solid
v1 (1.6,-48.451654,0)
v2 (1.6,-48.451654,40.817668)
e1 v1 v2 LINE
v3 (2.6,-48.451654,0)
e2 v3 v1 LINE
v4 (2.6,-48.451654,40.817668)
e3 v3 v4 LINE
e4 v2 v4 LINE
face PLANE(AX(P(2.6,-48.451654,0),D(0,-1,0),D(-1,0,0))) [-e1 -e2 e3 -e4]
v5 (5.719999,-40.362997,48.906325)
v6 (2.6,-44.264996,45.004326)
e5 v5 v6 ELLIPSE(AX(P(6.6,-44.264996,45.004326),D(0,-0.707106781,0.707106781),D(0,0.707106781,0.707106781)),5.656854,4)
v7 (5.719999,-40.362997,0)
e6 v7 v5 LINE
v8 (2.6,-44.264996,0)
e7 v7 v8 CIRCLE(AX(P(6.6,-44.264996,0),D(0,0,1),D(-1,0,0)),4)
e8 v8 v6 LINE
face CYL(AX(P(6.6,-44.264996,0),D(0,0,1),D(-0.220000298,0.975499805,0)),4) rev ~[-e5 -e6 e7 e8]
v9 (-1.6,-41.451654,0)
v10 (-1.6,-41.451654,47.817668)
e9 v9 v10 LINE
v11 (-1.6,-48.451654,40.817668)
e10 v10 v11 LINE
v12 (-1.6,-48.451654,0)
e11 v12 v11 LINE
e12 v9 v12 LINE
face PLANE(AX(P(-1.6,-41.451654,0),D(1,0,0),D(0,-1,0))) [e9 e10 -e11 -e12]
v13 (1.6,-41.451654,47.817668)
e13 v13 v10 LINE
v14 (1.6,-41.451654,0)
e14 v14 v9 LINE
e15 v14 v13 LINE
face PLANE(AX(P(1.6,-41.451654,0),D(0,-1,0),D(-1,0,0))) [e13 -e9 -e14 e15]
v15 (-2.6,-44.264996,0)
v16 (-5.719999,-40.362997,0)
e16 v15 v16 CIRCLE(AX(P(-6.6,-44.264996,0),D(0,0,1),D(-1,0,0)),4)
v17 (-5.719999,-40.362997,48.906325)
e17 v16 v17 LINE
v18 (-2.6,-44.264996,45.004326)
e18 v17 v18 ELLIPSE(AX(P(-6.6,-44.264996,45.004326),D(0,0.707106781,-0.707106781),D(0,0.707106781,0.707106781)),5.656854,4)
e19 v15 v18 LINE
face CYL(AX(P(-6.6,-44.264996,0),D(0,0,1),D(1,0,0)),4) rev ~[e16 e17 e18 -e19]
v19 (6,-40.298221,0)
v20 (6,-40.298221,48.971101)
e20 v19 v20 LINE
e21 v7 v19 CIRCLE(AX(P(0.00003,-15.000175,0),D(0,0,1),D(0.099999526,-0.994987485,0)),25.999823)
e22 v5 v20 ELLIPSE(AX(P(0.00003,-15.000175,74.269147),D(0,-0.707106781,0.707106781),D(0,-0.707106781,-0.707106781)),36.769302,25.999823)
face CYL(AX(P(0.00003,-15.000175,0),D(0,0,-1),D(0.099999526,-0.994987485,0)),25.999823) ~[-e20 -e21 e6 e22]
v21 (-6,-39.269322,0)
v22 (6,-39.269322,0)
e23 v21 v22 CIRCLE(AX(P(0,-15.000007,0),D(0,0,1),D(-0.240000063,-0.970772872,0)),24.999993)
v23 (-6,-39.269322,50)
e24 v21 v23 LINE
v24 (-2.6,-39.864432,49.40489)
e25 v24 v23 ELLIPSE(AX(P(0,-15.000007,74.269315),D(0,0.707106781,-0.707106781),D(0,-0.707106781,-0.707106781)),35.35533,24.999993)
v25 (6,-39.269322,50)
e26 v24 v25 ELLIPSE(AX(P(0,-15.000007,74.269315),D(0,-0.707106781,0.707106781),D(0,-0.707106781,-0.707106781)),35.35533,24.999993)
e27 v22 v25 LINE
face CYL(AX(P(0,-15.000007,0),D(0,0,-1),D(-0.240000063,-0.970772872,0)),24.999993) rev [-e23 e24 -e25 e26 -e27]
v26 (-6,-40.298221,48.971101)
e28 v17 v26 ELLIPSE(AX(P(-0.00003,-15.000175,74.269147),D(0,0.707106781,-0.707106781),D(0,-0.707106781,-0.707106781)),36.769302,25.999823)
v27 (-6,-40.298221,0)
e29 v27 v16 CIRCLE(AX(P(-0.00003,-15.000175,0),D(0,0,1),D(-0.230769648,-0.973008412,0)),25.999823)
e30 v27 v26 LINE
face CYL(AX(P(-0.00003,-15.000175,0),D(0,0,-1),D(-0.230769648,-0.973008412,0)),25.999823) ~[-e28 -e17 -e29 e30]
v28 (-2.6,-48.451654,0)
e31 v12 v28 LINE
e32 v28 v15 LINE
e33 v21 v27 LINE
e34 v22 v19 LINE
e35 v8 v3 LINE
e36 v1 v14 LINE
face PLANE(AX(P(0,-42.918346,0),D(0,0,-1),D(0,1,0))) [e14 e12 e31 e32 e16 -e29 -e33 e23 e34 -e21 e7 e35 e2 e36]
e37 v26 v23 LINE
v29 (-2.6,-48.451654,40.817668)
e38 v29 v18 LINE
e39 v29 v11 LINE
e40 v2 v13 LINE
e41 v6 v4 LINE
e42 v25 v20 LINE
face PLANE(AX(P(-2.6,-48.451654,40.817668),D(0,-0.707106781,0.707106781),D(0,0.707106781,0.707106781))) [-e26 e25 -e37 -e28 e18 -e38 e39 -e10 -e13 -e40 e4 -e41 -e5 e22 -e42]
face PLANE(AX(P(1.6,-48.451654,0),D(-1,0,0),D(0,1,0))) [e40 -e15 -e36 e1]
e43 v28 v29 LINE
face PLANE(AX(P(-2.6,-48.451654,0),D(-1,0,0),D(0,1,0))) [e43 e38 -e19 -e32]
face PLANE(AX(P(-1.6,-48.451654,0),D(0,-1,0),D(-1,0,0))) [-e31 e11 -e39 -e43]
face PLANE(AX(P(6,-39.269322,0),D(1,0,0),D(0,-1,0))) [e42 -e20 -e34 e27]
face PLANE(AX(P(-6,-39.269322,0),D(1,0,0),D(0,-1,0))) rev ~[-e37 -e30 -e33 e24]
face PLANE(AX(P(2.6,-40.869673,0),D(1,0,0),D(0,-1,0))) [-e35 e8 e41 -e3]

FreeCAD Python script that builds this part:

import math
import FreeCAD as App
import Part
import Sketcher

V = App.Vector
Q = App.Units.Quantity


def edges_at(feature, points):
    """Names of the edges that pass closest to the given points."""
    edges = feature.Shape.Edges
    near = lambda p: min(range(len(edges)), key=lambda i: edges[i].distToShape(Part.Vertex(*p))[0])
    return sorted({f"Edge{near(p) + 1}" for p in points})


def add_polygon(sketch, points):
    """Adds a closed chain of lines whose ends are joined by coincident constraints."""
    first, n = sketch.GeometryCount, len(points)
    for a, b in zip(points, points[1:] + points[:1]):
        sketch.addGeometry(Part.LineSegment(App.Vector(*a, 0), App.Vector(*b, 0)), False)
    for i in range(n):
        sketch.addConstraint(Sketcher.Constraint("Coincident", first + i, 2, first + (i + 1) % n, 1))

doc = App.newDocument("Part")
body = doc.addObject("PartDesign::Body", "Body")

sketch1 = body.newObject("Sketcher::SketchObject", "Sketch")
sketch1.AttachmentSupport = (doc.getObject("XY_Plane"), [""])
sketch1.MapMode = "FlatFace"
sketch1.addGeometry(Part.ArcOfCircle(Part.Circle(V(0.000007, 0, 0), V(0, 0, 1), 24.999993), math.radians(-13.886544), math.radians(13.886544)), False)
sketch1.addGeometry(Part.LineSegment(V(24.269322, -6, 0), V(25.298221, -6, 0)), False)
sketch1.addGeometry(Part.ArcOfCircle(Part.Circle(V(0.000175, -0.00003, 0), V(0, 0, 1), 25.999823), math.radians(-13.342388), math.radians(-5.739143)), False)
sketch1.addGeometry(Part.LineSegment(V(25.869673, -2.6, 0), V(33.451654, -2.6, 0)), False)
sketch1.addGeometry(Part.LineSegment(V(33.451654, -2.6, 0), V(33.451654, -1.6, 0)), False)
sketch1.addGeometry(Part.LineSegment(V(33.451654, -1.6, 0), V(26.451654, -1.6, 0)), False)
sketch1.addGeometry(Part.LineSegment(V(26.451654, -1.6, 0), V(26.451654, 1.6, 0)), False)
sketch1.addGeometry(Part.LineSegment(V(26.451654, 1.6, 0), V(33.451654, 1.6, 0)), False)
sketch1.addGeometry(Part.LineSegment(V(33.451654, 1.6, 0), V(33.451654, 2.6, 0)), False)
sketch1.addGeometry(Part.LineSegment(V(33.451654, 2.6, 0), V(25.869673, 2.6, 0)), False)
sketch1.addGeometry(Part.ArcOfCircle(Part.Circle(V(0.000175, 0.00003, 0), V(0, 0, 1), 25.999823), math.radians(5.739143), math.radians(13.342388)), False)
sketch1.addGeometry(Part.LineSegment(V(25.298221, 6, 0), V(24.269322, 6, 0)), False)
sketch1.addConstraint(Sketcher.Constraint("Coincident", 0, 1, 1, 1))
sketch1.addConstraint(Sketcher.Constraint("Coincident", 1, 2, 2, 1))
sketch1.addConstraint(Sketcher.Constraint("Coincident", 2, 2, 3, 1))
sketch1.addConstraint(Sketcher.Constraint("Coincident", 3, 2, 4, 1))
sketch1.addConstraint(Sketcher.Constraint("Coincident", 4, 2, 5, 1))
sketch1.addConstraint(Sketcher.Constraint("Coincident", 5, 2, 6, 1))
sketch1.addConstraint(Sketcher.Constraint("Coincident", 6, 2, 7, 1))
sketch1.addConstraint(Sketcher.Constraint("Coincident", 7, 2, 8, 1))
sketch1.addConstraint(Sketcher.Constraint("Coincident", 8, 2, 9, 1))
sketch1.addConstraint(Sketcher.Constraint("Coincident", 9, 2, 10, 1))
sketch1.addConstraint(Sketcher.Constraint("Coincident", 10, 2, 11, 1))
sketch1.addConstraint(Sketcher.Constraint("Coincident", 11, 2, 0, 2))
sketch1.addConstraint(Sketcher.Constraint("Horizontal", 1))
sketch1.addConstraint(Sketcher.Constraint("Horizontal", 3))
sketch1.addConstraint(Sketcher.Constraint("Vertical", 4))
sketch1.addConstraint(Sketcher.Constraint("Horizontal", 5))
sketch1.addConstraint(Sketcher.Constraint("Vertical", 6))
sketch1.addConstraint(Sketcher.Constraint("Horizontal", 7))
sketch1.addConstraint(Sketcher.Constraint("Vertical", 8))
sketch1.addConstraint(Sketcher.Constraint("Horizontal", 9))
sketch1.addConstraint(Sketcher.Constraint("Horizontal", 11))
sketch1.addConstraint(Sketcher.Constraint("Coincident", 0, 3, -1, 1))
sketch1.addConstraint(Sketcher.Constraint("Equal", 2, 10))
sketch1.addConstraint(Sketcher.Constraint("Symmetric", 2, 3, 10, 3, -1))
sketch1.addConstraint(Sketcher.Constraint("Symmetric", 4, 2, 7, 2, -1))
sketch1.addConstraint(Sketcher.Constraint("Vertical", 2, 2, 9, 2))
sketch1.addConstraint(Sketcher.Constraint("Vertical", 1, 2, 10, 2))
sketch1.addConstraint(Sketcher.Constraint("DistanceX", 5, 2, 5, 1, Q("7 mm")))
sketch1.addConstraint(Sketcher.Constraint("DistanceY", 4, 1, 4, 2, Q("1 mm")))
sketch1.addConstraint(Sketcher.Constraint("DistanceY", 6, 1, 6, 2, Q("3.2 mm")))
sketch1.addConstraint(Sketcher.Constraint("DistanceY", 0, 1, -1, 1, Q("6 mm")))
sketch1.addConstraint(Sketcher.Constraint("DistanceX", 1, 1, 1, 2, Q("1.028899 mm")))
sketch1.addConstraint(Sketcher.Constraint("Radius", 0, Q("24.999993 mm")))
sketch1.addConstraint(Sketcher.Constraint("Radius", 2, Q("25.999823 mm")))
sketch1.addConstraint(Sketcher.Constraint("DistanceX", 3, 1, 3, 2, Q("7.581981 mm")))
sketch1.addConstraint(Sketcher.Constraint("DistanceX", 2, 3, 2, 2, Q("25.869498 mm")))
pad1 = body.newObject("PartDesign::Pad", "Pad")
pad1.Profile = sketch1
pad1.Length = 50
doc.recompute()

fillet = body.newObject("PartDesign::Fillet", "Fillet")
fillet.Base = (pad1, edges_at(pad1, [(25.87, -2.6, 25), (25.87, 2.6, 25)]))
fillet.Radius = 4

sketch2 = body.newObject("Sketcher::SketchObject", "Sketch001")
sketch2.AttachmentSupport = (doc.getObject("XZ_Plane"), [""])
sketch2.MapMode = "FlatFace"
sketch2.AttachmentOffset = App.Placement(V(0, 0, 2.6), App.Rotation())
add_polygon(sketch2, [(33, 41), (33, 50), (24, 50)])
sketch2.addConstraint(Sketcher.Constraint("Vertical", 0))
sketch2.addConstraint(Sketcher.Constraint("Horizontal", 1))
sketch2.addConstraint(Sketcher.Constraint("Equal", 1, 0))
sketch2.addConstraint(Sketcher.Constraint("DistanceY", -1, 1, 0, 2, Q("50 mm")))
sketch2.addConstraint(Sketcher.Constraint("DistanceX", 1, 2, 1, 1, Q("9.182332 mm")))
sketch2.addConstraint(Sketcher.Constraint("DistanceX", -1, 1, 1, 2, Q("24.269322 mm")))
pocket1 = body.newObject("PartDesign::Pocket", "Pocket")
pocket1.Profile = sketch2
pocket1.Type = "ThroughAll"
pocket1.Midplane = True
body2 = doc.addObject("PartDesign::Body", "Body001")
doc.recompute()

body.Placement = App.Placement(V(0, -15, 0), App.Rotation(V(0, 0, -1), 90))
boolean = body2.newObject("PartDesign::Boolean", "Boolean")
boolean.Type = "Fuse"
boolean.addObjects([body])

doc.recompute()
